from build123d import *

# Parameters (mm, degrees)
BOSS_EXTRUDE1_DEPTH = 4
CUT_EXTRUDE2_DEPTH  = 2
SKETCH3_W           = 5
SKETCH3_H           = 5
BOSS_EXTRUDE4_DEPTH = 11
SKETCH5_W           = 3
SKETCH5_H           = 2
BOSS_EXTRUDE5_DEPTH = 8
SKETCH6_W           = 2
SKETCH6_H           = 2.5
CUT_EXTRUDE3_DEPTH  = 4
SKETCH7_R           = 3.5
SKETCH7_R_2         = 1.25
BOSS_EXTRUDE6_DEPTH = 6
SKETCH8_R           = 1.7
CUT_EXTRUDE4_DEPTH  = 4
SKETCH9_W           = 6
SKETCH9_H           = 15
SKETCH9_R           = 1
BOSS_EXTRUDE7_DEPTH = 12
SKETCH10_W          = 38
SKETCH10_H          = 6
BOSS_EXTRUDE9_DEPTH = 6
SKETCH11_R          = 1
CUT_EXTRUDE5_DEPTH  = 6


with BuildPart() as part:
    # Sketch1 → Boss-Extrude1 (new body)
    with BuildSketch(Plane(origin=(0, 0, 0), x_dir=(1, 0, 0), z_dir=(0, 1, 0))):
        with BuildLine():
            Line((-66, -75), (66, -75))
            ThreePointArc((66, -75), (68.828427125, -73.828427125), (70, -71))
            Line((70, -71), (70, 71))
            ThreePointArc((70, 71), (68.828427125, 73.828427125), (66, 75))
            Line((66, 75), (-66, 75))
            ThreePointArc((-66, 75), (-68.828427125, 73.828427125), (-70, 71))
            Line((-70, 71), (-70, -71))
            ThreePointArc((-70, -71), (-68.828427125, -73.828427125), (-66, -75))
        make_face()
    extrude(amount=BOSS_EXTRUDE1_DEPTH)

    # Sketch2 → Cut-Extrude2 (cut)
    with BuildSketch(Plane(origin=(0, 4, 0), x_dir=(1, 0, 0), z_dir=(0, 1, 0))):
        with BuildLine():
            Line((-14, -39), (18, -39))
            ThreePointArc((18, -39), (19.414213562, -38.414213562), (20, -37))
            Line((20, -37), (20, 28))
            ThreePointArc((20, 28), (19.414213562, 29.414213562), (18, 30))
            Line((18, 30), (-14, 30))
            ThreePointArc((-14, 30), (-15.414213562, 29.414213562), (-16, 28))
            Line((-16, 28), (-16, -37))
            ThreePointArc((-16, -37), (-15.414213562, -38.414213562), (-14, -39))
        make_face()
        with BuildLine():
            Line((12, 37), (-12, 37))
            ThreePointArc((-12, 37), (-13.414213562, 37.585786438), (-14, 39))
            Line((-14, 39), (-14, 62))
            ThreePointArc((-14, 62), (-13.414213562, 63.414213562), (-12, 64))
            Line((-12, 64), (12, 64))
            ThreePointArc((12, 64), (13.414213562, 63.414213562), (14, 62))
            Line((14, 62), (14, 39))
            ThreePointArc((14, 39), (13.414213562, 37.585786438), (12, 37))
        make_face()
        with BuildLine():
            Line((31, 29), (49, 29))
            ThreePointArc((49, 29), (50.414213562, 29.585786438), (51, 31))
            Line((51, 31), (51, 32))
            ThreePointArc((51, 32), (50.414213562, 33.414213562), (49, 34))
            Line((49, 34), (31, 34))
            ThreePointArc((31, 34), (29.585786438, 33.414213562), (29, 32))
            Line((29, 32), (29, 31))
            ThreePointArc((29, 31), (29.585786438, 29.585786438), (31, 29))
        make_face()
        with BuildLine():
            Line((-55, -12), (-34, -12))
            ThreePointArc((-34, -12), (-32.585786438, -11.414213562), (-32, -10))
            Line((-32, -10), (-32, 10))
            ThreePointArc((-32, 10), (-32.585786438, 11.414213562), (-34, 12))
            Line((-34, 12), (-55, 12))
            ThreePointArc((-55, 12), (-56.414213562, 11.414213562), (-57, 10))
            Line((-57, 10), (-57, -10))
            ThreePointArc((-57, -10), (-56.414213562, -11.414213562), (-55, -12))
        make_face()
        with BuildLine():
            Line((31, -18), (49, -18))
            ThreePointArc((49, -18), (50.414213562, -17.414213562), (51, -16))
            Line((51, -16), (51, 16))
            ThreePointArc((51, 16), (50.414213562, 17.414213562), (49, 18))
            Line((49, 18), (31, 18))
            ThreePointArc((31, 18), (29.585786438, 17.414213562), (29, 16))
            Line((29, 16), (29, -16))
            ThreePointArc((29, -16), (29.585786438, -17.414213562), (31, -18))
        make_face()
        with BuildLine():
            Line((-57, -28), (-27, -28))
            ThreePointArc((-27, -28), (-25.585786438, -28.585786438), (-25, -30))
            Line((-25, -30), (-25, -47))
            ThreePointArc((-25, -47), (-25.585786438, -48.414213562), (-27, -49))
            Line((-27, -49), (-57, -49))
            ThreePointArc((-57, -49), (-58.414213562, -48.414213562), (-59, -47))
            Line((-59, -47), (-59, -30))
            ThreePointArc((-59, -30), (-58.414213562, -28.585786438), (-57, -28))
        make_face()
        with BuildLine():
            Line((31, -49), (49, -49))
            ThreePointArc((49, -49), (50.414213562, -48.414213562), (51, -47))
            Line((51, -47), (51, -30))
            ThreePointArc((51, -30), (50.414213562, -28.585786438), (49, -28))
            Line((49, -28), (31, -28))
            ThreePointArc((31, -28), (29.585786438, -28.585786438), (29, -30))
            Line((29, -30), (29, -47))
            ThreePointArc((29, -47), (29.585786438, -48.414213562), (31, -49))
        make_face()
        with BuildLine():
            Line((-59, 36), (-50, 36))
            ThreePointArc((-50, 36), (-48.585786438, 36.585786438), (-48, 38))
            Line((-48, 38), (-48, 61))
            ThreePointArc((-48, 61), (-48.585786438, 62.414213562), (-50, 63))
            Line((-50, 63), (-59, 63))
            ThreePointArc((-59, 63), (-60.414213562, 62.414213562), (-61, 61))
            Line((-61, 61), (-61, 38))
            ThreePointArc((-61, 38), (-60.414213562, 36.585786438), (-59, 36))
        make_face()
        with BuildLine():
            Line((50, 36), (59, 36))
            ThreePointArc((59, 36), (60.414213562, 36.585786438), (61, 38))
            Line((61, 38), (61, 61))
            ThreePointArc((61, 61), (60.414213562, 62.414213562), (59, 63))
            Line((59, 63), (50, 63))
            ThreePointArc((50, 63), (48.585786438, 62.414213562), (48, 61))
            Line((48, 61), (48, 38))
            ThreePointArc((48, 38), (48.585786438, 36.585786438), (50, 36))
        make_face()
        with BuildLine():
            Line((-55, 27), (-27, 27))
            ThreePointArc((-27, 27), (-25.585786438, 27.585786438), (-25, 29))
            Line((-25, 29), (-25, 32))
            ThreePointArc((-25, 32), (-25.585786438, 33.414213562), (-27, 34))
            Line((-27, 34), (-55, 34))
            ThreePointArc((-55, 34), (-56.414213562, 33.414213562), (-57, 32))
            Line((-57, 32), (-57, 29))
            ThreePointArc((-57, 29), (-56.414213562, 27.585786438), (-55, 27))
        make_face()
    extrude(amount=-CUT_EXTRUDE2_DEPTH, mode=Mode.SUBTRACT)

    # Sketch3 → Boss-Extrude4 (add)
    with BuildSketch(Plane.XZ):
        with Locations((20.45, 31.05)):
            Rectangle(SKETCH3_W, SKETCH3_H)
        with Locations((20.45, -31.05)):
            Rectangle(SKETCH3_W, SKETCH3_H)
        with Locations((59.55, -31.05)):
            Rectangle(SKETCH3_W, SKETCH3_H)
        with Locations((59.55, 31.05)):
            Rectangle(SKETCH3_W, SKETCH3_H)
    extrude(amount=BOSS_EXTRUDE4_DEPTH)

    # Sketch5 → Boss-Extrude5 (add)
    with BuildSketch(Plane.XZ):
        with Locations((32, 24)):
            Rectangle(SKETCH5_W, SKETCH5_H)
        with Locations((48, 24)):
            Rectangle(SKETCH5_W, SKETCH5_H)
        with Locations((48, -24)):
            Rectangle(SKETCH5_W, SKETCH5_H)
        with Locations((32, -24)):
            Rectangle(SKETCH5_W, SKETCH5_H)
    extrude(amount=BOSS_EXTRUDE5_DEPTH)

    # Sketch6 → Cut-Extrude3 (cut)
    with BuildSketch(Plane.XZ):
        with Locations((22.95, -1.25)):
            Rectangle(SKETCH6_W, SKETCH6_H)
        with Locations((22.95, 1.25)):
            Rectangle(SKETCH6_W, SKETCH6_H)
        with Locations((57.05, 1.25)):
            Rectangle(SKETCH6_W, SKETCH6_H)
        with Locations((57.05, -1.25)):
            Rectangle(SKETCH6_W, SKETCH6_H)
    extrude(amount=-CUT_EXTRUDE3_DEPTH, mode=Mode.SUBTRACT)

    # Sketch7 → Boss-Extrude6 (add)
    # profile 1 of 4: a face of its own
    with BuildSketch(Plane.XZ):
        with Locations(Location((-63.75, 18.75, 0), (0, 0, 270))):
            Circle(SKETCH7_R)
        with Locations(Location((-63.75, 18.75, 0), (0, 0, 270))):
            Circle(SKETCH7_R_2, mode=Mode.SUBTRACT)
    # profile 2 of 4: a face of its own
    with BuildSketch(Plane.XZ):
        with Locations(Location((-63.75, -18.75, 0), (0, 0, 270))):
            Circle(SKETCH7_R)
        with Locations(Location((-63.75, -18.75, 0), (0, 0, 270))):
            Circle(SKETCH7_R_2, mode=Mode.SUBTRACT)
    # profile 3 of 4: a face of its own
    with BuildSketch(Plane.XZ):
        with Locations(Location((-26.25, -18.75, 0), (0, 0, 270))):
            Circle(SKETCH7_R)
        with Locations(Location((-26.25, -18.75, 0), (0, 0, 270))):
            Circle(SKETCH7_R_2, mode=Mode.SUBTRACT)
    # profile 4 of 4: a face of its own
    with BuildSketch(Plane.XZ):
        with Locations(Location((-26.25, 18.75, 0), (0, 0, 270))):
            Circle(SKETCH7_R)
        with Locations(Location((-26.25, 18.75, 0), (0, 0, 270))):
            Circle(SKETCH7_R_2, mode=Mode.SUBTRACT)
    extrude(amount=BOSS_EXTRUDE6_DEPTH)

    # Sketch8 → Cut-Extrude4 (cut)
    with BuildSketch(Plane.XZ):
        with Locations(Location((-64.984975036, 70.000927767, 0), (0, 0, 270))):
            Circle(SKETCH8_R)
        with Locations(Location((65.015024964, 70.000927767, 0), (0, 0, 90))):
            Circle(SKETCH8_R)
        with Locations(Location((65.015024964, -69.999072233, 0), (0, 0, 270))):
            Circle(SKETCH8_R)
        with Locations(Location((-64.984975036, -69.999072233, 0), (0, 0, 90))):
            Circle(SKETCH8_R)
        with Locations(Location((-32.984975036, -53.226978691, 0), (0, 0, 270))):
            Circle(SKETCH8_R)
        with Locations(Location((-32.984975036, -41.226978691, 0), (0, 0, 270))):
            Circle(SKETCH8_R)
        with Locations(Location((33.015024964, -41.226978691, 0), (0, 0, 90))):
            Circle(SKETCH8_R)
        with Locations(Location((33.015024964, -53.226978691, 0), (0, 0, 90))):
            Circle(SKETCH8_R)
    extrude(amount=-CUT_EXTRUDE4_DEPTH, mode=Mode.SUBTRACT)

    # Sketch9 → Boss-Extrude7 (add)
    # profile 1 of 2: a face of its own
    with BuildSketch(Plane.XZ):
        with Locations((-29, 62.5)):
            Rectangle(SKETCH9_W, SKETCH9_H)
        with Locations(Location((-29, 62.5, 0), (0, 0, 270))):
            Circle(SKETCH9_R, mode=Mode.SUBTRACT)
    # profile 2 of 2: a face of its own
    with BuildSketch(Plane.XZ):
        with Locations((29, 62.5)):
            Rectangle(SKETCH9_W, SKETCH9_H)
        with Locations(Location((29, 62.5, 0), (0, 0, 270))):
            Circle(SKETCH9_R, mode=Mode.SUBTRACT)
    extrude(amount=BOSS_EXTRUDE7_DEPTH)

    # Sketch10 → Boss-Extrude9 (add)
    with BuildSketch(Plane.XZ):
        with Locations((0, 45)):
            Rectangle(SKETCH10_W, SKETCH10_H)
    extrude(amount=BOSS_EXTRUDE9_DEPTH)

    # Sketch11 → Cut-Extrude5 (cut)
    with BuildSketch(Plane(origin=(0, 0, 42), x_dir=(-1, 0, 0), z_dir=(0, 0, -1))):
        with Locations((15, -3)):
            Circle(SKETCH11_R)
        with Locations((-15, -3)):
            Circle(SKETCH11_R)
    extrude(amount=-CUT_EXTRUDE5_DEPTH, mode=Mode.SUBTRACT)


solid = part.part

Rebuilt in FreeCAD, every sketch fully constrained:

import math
import FreeCAD as App
import Part
import Sketcher

V = App.Vector
Q = App.Units.Quantity


def add_polygon(sketch, points):
    """Adds a closed chain of lines whose ends are joined by coincident constraints."""
    first, n = sketch.GeometryCount, len(points)
    for a, b in zip(points, points[1:] + points[:1]):
        sketch.addGeometry(Part.LineSegment(App.Vector(*a, 0), App.Vector(*b, 0)), False)
    for i in range(n):
        sketch.addConstraint(Sketcher.Constraint("Coincident", first + i, 2, first + (i + 1) % n, 1))

doc = App.newDocument("Part")
body = doc.addObject("PartDesign::Body", "Body")

# Sketch on XZ plane
sketch1 = body.newObject("Sketcher::SketchObject", "Sketch")
sketch1.AttachmentSupport = (doc.getObject("XZ_Plane"), [""])
sketch1.MapMode = "FlatFace"
sketch1.addGeometry(Part.LineSegment(V(-66, 75, 0), V(66, 75, 0)), False)
sketch1.addGeometry(Part.ArcOfCircle(Part.Circle(V(66, 71, 0), V(0, 0, 1), 4), math.radians(0), math.radians(90)), False)
sketch1.addGeometry(Part.LineSegment(V(70, 71, 0), V(70, -71, 0)), False)
sketch1.addGeometry(Part.ArcOfCircle(Part.Circle(V(66, -71, 0), V(0, 0, 1), 4), math.radians(-90), math.radians(0)), False)
sketch1.addGeometry(Part.LineSegment(V(66, -75, 0), V(-66, -75, 0)), False)
sketch1.addGeometry(Part.ArcOfCircle(Part.Circle(V(-66, -71, 0), V(0, 0, 1), 4), math.radians(180), math.radians(270)), False)
sketch1.addGeometry(Part.LineSegment(V(-70, -71, 0), V(-70, 71, 0)), False)
sketch1.addGeometry(Part.ArcOfCircle(Part.Circle(V(-66, 71, 0), V(0, 0, 1), 4), math.radians(90), math.radians(180)), False)
sketch1.addConstraint(Sketcher.Constraint("Tangent", 0, 2, 1, 2))
sketch1.addConstraint(Sketcher.Constraint("Tangent", 1, 1, 2, 1))
sketch1.addConstraint(Sketcher.Constraint("Tangent", 2, 2, 3, 2))
sketch1.addConstraint(Sketcher.Constraint("Tangent", 3, 1, 4, 1))
sketch1.addConstraint(Sketcher.Constraint("Tangent", 4, 2, 5, 2))
sketch1.addConstraint(Sketcher.Constraint("Tangent", 5, 1, 6, 1))
sketch1.addConstraint(Sketcher.Constraint("Tangent", 6, 2, 7, 2))
sketch1.addConstraint(Sketcher.Constraint("Tangent", 7, 1, 0, 1))
sketch1.addConstraint(Sketcher.Constraint("Horizontal", 0))
sketch1.addConstraint(Sketcher.Constraint("Vertical", 2))
sketch1.addConstraint(Sketcher.Constraint("Horizontal", 4))
sketch1.addConstraint(Sketcher.Constraint("Vertical", 6))
sketch1.addConstraint(Sketcher.Constraint("Equal", 1, 3))
sketch1.addConstraint(Sketcher.Constraint("Equal", 3, 5))
sketch1.addConstraint(Sketcher.Constraint("Equal", 5, 7))
sketch1.addConstraint(Sketcher.Constraint("Symmetric", 1, 3, 5, 3, -1, 1))
sketch1.addConstraint(Sketcher.Constraint("Radius", 1, Q("4 mm")))
sketch1.addConstraint(Sketcher.Constraint("DistanceX", 0, 1, 0, 2, Q("132 mm")))
sketch1.addConstraint(Sketcher.Constraint("DistanceY", 2, 2, 2, 1, Q("142 mm")))
pad1 = body.newObject("PartDesign::Pad", "Pad")
pad1.Profile = sketch1
pad1.Length = 4
pad1.Reversed = True

# Sketch on XZ plane
sketch2 = body.newObject("Sketcher::SketchObject", "Sketch001")
sketch2.AttachmentSupport = (doc.getObject("XZ_Plane"), [""])
sketch2.MapMode = "FlatFace"
sketch2.AttachmentOffset = App.Placement(V(0, 0, -4), App.Rotation())
sketch2.addGeometry(Part.LineSegment(V(-14, 39, 0), V(18, 39, 0)), False)
sketch2.addGeometry(Part.ArcOfCircle(Part.Circle(V(18, 37, 0), V(0, 0, 1), 2), math.radians(0), math.radians(90)), False)
sketch2.addGeometry(Part.LineSegment(V(20, 37, 0), V(20, -28, 0)), False)
sketch2.addGeometry(Part.ArcOfCircle(Part.Circle(V(18, -28, 0), V(0, 0, 1), 2), math.radians(-90), math.radians(0)), False)
sketch2.addGeometry(Part.LineSegment(V(18, -30, 0), V(-14, -30, 0)), False)
sketch2.addGeometry(Part.ArcOfCircle(Part.Circle(V(-14, -28, 0), V(0, 0, 1), 2), math.radians(-180), math.radians(-90)), False)
sketch2.addGeometry(Part.LineSegment(V(-16, -28, 0), V(-16, 37, 0)), False)
sketch2.addGeometry(Part.ArcOfCircle(Part.Circle(V(-14, 37, 0), V(0, 0, 1), 2), math.radians(90), math.radians(180)), False)
sketch2.addGeometry(Part.LineSegment(V(-12, -37, 0), V(12, -37, 0)), False)
sketch2.addGeometry(Part.ArcOfCircle(Part.Circle(V(12, -39, 0), V(0, 0, 1), 2), math.radians(0), math.radians(90)), False)
sketch2.addGeometry(Part.LineSegment(V(14, -39, 0), V(14, -62, 0)), False)
sketch2.addGeometry(Part.ArcOfCircle(Part.Circle(V(12, -62, 0), V(0, 0, 1), 2), math.radians(-90), math.radians(0)), False)
sketch2.addGeometry(Part.LineSegment(V(12, -64, 0), V(-12, -64, 0)), False)
sketch2.addGeometry(Part.ArcOfCircle(Part.Circle(V(-12, -62, 0), V(0, 0, 1), 2), math.radians(-180), math.radians(-90)), False)
sketch2.addGeometry(Part.LineSegment(V(-14, -62, 0), V(-14, -39, 0)), False)
sketch2.addGeometry(Part.ArcOfCircle(Part.Circle(V(-12, -39, 0), V(0, 0, 1), 2), math.radians(90), math.radians(180)), False)
sketch2.addGeometry(Part.LineSegment(V(31, -29, 0), V(49, -29, 0)), False)
sketch2.addGeometry(Part.ArcOfCircle(Part.Circle(V(49, -31, 0), V(0, 0, 1), 2), math.radians(0), math.radians(90)), False)
sketch2.addGeometry(Part.LineSegment(V(51, -31, 0), V(51, -32, 0)), False)
sketch2.addGeometry(Part.ArcOfCircle(Part.Circle(V(49, -32, 0), V(0, 0, 1), 2), math.radians(-90), math.radians(0)), False)
sketch2.addGeometry(Part.LineSegment(V(49, -34, 0), V(31, -34, 0)), False)
sketch2.addGeometry(Part.ArcOfCircle(Part.Circle(V(31, -32, 0), V(0, 0, 1), 2), math.radians(-180), math.radians(-90)), False)
sketch2.addGeometry(Part.LineSegment(V(29, -32, 0), V(29, -31, 0)), False)
sketch2.addGeometry(Part.ArcOfCircle(Part.Circle(V(31, -31, 0), V(0, 0, 1), 2), math.radians(90), math.radians(180)), False)
sketch2.addGeometry(Part.LineSegment(V(-55, 12, 0), V(-34, 12, 0)), False)
sketch2.addGeometry(Part.ArcOfCircle(Part.Circle(V(-34, 10, 0), V(0, 0, 1), 2), math.radians(0), math.radians(90)), False)
sketch2.addGeometry(Part.LineSegment(V(-32, 10, 0), V(-32, -10, 0)), False)
sketch2.addGeometry(Part.ArcOfCircle(Part.Circle(V(-34, -10, 0), V(0, 0, 1), 2), math.radians(-90), math.radians(0)), False)
sketch2.addGeometry(Part.LineSegment(V(-34, -12, 0), V(-55, -12, 0)), False)
sketch2.addGeometry(Part.ArcOfCircle(Part.Circle(V(-55, -10, 0), V(0, 0, 1), 2), math.radians(-180), math.radians(-90)), False)
sketch2.addGeometry(Part.LineSegment(V(-57, -10, 0), V(-57, 10, 0)), False)
sketch2.addGeometry(Part.ArcOfCircle(Part.Circle(V(-55, 10, 0), V(0, 0, 1), 2), math.radians(90), math.radians(180)), False)
sketch2.addGeometry(Part.LineSegment(V(31, 18, 0), V(49, 18, 0)), False)
sketch2.addGeometry(Part.ArcOfCircle(Part.Circle(V(49, 16, 0), V(0, 0, 1), 2), math.radians(0), math.radians(90)), False)
sketch2.addGeometry(Part.LineSegment(V(51, 16, 0), V(51, -16, 0)), False)
sketch2.addGeometry(Part.ArcOfCircle(Part.Circle(V(49, -16, 0), V(0, 0, 1), 2), math.radians(-90), math.radians(0)), False)
sketch2.addGeometry(Part.LineSegment(V(49, -18, 0), V(31, -18, 0)), False)
sketch2.addGeometry(Part.ArcOfCircle(Part.Circle(V(31, -16, 0), V(0, 0, 1), 2), math.radians(-180), math.radians(-90)), False)
sketch2.addGeometry(Part.LineSegment(V(29, -16, 0), V(29, 16, 0)), False)
sketch2.addGeometry(Part.ArcOfCircle(Part.Circle(V(31, 16, 0), V(0, 0, 1), 2), math.radians(90), math.radians(180)), False)
sketch2.addGeometry(Part.LineSegment(V(-27, 28, 0), V(-57, 28, 0)), False)
sketch2.addGeometry(Part.ArcOfCircle(Part.Circle(V(-57, 30, 0), V(0, 0, 1), 2), math.radians(-180), math.radians(-90)), False)
sketch2.addGeometry(Part.LineSegment(V(-59, 30, 0), V(-59, 47, 0)), False)
sketch2.addGeometry(Part.ArcOfCircle(Part.Circle(V(-57, 47, 0), V(0, 0, 1), 2), math.radians(90), math.radians(180)), False)
sketch2.addGeometry(Part.LineSegment(V(-57, 49, 0), V(-27, 49, 0)), False)
sketch2.addGeometry(Part.ArcOfCircle(Part.Circle(V(-27, 47, 0), V(0, 0, 1), 2), math.radians(0), math.radians(90)), False)
sketch2.addGeometry(Part.LineSegment(V(-25, 47, 0), V(-25, 30, 0)), False)
sketch2.addGeometry(Part.ArcOfCircle(Part.Circle(V(-27, 30, 0), V(0, 0, 1), 2), math.radians(-90), math.radians(0)), False)
sketch2.addGeometry(Part.LineSegment(V(31, 49, 0), V(49, 49, 0)), False)
sketch2.addGeometry(Part.ArcOfCircle(Part.Circle(V(49, 47, 0), V(0, 0, 1), 2), math.radians(0), math.radians(90)), False)
sketch2.addGeometry(Part.LineSegment(V(51, 47, 0), V(51, 30, 0)), False)
sketch2.addGeometry(Part.ArcOfCircle(Part.Circle(V(49, 30, 0), V(0, 0, 1), 2), math.radians(-90), math.radians(0)), False)
sketch2.addGeometry(Part.LineSegment(V(49, 28, 0), V(31, 28, 0)), False)
sketch2.addGeometry(Part.ArcOfCircle(Part.Circle(V(31, 30, 0), V(0, 0, 1), 2), math.radians(-180), math.radians(-90)), False)
sketch2.addGeometry(Part.LineSegment(V(29, 30, 0), V(29, 47, 0)), False)
sketch2.addGeometry(Part.ArcOfCircle(Part.Circle(V(31, 47, 0), V(0, 0, 1), 2), math.radians(90), math.radians(180)), False)
sketch2.addGeometry(Part.LineSegment(V(-59, -36, 0), V(-50, -36, 0)), False)
sketch2.addGeometry(Part.ArcOfCircle(Part.Circle(V(-50, -38, 0), V(0, 0, 1), 2), math.radians(0), math.radians(90)), False)
sketch2.addGeometry(Part.LineSegment(V(-48, -38, 0), V(-48, -61, 0)), False)
sketch2.addGeometry(Part.ArcOfCircle(Part.Circle(V(-50, -61, 0), V(0, 0, 1), 2), math.radians(-90), math.radians(0)), False)
sketch2.addGeometry(Part.LineSegment(V(-50, -63, 0), V(-59, -63, 0)), False)
sketch2.addGeometry(Part.ArcOfCircle(Part.Circle(V(-59, -61, 0), V(0, 0, 1), 2), math.radians(-180), math.radians(-90)), False)
sketch2.addGeometry(Part.LineSegment(V(-61, -61, 0), V(-61, -38, 0)), False)
sketch2.addGeometry(Part.ArcOfCircle(Part.Circle(V(-59, -38, 0), V(0, 0, 1), 2), math.radians(90), math.radians(180)), False)
sketch2.addGeometry(Part.LineSegment(V(50, -36, 0), V(59, -36, 0)), False)
sketch2.addGeometry(Part.ArcOfCircle(Part.Circle(V(59, -38, 0), V(0, 0, 1), 2), math.radians(0), math.radians(90)), False)
sketch2.addGeometry(Part.LineSegment(V(61, -38, 0), V(61, -61, 0)), False)
sketch2.addGeometry(Part.ArcOfCircle(Part.Circle(V(59, -61, 0), V(0, 0, 1), 2), math.radians(-90), math.radians(0)), False)
sketch2.addGeometry(Part.LineSegment(V(59, -63, 0), V(50, -63, 0)), False)
sketch2.addGeometry(Part.ArcOfCircle(Part.Circle(V(50, -61, 0), V(0, 0, 1), 2), math.radians(-180), math.radians(-90)), False)
sketch2.addGeometry(Part.LineSegment(V(48, -61, 0), V(48, -38, 0)), False)
sketch2.addGeometry(Part.ArcOfCircle(Part.Circle(V(50, -38, 0), V(0, 0, 1), 2), math.radians(90), math.radians(180)), False)
sketch2.addGeometry(Part.LineSegment(V(-55, -27, 0), V(-27, -27, 0)), False)
sketch2.addGeometry(Part.ArcOfCircle(Part.Circle(V(-27, -29, 0), V(0, 0, 1), 2), math.radians(0), math.radians(90)), False)
sketch2.addGeometry(Part.LineSegment(V(-25, -29, 0), V(-25, -32, 0)), False)
sketch2.addGeometry(Part.ArcOfCircle(Part.Circle(V(-27, -32, 0), V(0, 0, 1), 2), math.radians(-90), math.radians(0)), False)
sketch2.addGeometry(Part.LineSegment(V(-27, -34, 0), V(-55, -34, 0)), False)
sketch2.addGeometry(Part.ArcOfCircle(Part.Circle(V(-55, -32, 0), V(0, 0, 1), 2), math.radians(-180), math.radians(-90)), False)
sketch2.addGeometry(Part.LineSegment(V(-57, -32, 0), V(-57, -29, 0)), False)
sketch2.addGeometry(Part.ArcOfCircle(Part.Circle(V(-55, -29, 0), V(0, 0, 1), 2), math.radians(90), math.radians(180)), False)
sketch2.addConstraint(Sketcher.Constraint("Tangent", 0, 2, 1, 2))
sketch2.addConstraint(Sketcher.Constraint("Tangent", 1, 1, 2, 1))
sketch2.addConstraint(Sketcher.Constraint("Tangent", 2, 2, 3, 2))
sketch2.addConstraint(Sketcher.Constraint("Tangent", 3, 1, 4, 1))
sketch2.addConstraint(Sketcher.Constraint("Tangent", 4, 2, 5, 2))
sketch2.addConstraint(Sketcher.Constraint("Tangent", 5, 1, 6, 1))
sketch2.addConstraint(Sketcher.Constraint("Tangent", 6, 2, 7, 2))
sketch2.addConstraint(Sketcher.Constraint("Tangent", 7, 1, 0, 1))
sketch2.addConstraint(Sketcher.Constraint("Tangent", 8, 2, 9, 2))
sketch2.addConstraint(Sketcher.Constraint("Tangent", 9, 1, 10, 1))
sketch2.addConstraint(Sketcher.Constraint("Tangent", 10, 2, 11, 2))
sketch2.addConstraint(Sketcher.Constraint("Tangent", 11, 1, 12, 1))
sketch2.addConstraint(Sketcher.Constraint("Tangent", 12, 2, 13, 2))
sketch2.addConstraint(Sketcher.Constraint("Tangent", 13, 1, 14, 1))
sketch2.addConstraint(Sketcher.Constraint("Tangent", 14, 2, 15, 2))
sketch2.addConstraint(Sketcher.Constraint("Tangent", 15, 1, 8, 1))
sketch2.addConstraint(Sketcher.Constraint("Tangent", 16, 2, 17, 2))
sketch2.addConstraint(Sketcher.Constraint("Tangent", 17, 1, 18, 1))
sketch2.addConstraint(Sketcher.Constraint("Tangent", 18, 2, 19, 2))
sketch2.addConstraint(Sketcher.Constraint("Tangent", 19, 1, 20, 1))
sketch2.addConstraint(Sketcher.Constraint("Tangent", 20, 2, 21, 2))
sketch2.addConstraint(Sketcher.Constraint("Tangent", 21, 1, 22, 1))
sketch2.addConstraint(Sketcher.Constraint("Tangent", 22, 2, 23, 2))
sketch2.addConstraint(Sketcher.Constraint("Tangent", 23, 1, 16, 1))
sketch2.addConstraint(Sketcher.Constraint("Tangent", 24, 2, 25, 2))
sketch2.addConstraint(Sketcher.Constraint("Tangent", 25, 1, 26, 1))
sketch2.addConstraint(Sketcher.Constraint("Tangent", 26, 2, 27, 2))
sketch2.addConstraint(Sketcher.Constraint("Tangent", 27, 1, 28, 1))
sketch2.addConstraint(Sketcher.Constraint("Tangent", 28, 2, 29, 2))
sketch2.addConstraint(Sketcher.Constraint("Tangent", 29, 1, 30, 1))
sketch2.addConstraint(Sketcher.Constraint("Tangent", 30, 2, 31, 2))
sketch2.addConstraint(Sketcher.Constraint("Tangent", 31, 1, 24, 1))
sketch2.addConstraint(Sketcher.Constraint("Tangent", 32, 2, 33, 2))
sketch2.addConstraint(Sketcher.Constraint("Tangent", 33, 1, 34, 1))
sketch2.addConstraint(Sketcher.Constraint("Tangent", 34, 2, 35, 2))
sketch2.addConstraint(Sketcher.Constraint("Tangent", 35, 1, 36, 1))
sketch2.addConstraint(Sketcher.Constraint("Tangent", 36, 2, 37, 2))
sketch2.addConstraint(Sketcher.Constraint("Tangent", 37, 1, 38, 1))
sketch2.addConstraint(Sketcher.Constraint("Tangent", 38, 2, 39, 2))
sketch2.addConstraint(Sketcher.Constraint("Tangent", 39, 1, 32, 1))
sketch2.addConstraint(Sketcher.Constraint("Tangent", 40, 2, 41, 2))
sketch2.addConstraint(Sketcher.Constraint("Tangent", 41, 1, 42, 1))
sketch2.addConstraint(Sketcher.Constraint("Tangent", 42, 2, 43, 2))
sketch2.addConstraint(Sketcher.Constraint("Tangent", 43, 1, 44, 1))
sketch2.addConstraint(Sketcher.Constraint("Tangent", 44, 2, 45, 2))
sketch2.addConstraint(Sketcher.Constraint("Tangent", 45, 1, 46, 1))
sketch2.addConstraint(Sketcher.Constraint("Tangent", 46, 2, 47, 2))
sketch2.addConstraint(Sketcher.Constraint("Tangent", 47, 1, 40, 1))
sketch2.addConstraint(Sketcher.Constraint("Tangent", 48, 2, 49, 2))
sketch2.addConstraint(Sketcher.Constraint("Tangent", 49, 1, 50, 1))
sketch2.addConstraint(Sketcher.Constraint("Tangent", 50, 2, 51, 2))
sketch2.addConstraint(Sketcher.Constraint("Tangent", 51, 1, 52, 1))
sketch2.addConstraint(Sketcher.Constraint("Tangent", 52, 2, 53, 2))
sketch2.addConstraint(Sketcher.Constraint("Tangent", 53, 1, 54, 1))
sketch2.addConstraint(Sketcher.Constraint("Tangent", 54, 2, 55, 2))
sketch2.addConstraint(Sketcher.Constraint("Tangent", 55, 1, 48, 1))
sketch2.addConstraint(Sketcher.Constraint("Tangent", 56, 2, 57, 2))
sketch2.addConstraint(Sketcher.Constraint("Tangent", 57, 1, 58, 1))
sketch2.addConstraint(Sketcher.Constraint("Tangent", 58, 2, 59, 2))
sketch2.addConstraint(Sketcher.Constraint("Tangent", 59, 1, 60, 1))
sketch2.addConstraint(Sketcher.Constraint("Tangent", 60, 2, 61, 2))
sketch2.addConstraint(Sketcher.Constraint("Tangent", 61, 1, 62, 1))
sketch2.addConstraint(Sketcher.Constraint("Tangent", 62, 2, 63, 2))
sketch2.addConstraint(Sketcher.Constraint("Tangent", 63, 1, 56, 1))
sketch2.addConstraint(Sketcher.Constraint("Tangent", 64, 2, 65, 2))
sketch2.addConstraint(Sketcher.Constraint("Tangent", 65, 1, 66, 1))
sketch2.addConstraint(Sketcher.Constraint("Tangent", 66, 2, 67, 2))
sketch2.addConstraint(Sketcher.Constraint("Tangent", 67, 1, 68, 1))
sketch2.addConstraint(Sketcher.Constraint("Tangent", 68, 2, 69, 2))
sketch2.addConstraint(Sketcher.Constraint("Tangent", 69, 1, 70, 1))
sketch2.addConstraint(Sketcher.Constraint("Tangent", 70, 2, 71, 2))
sketch2.addConstraint(Sketcher.Constraint("Tangent", 71, 1, 64, 1))
sketch2.addConstraint(Sketcher.Constraint("Tangent", 72, 2, 73, 2))
sketch2.addConstraint(Sketcher.Constraint("Tangent", 73, 1, 74, 1))
sketch2.addConstraint(Sketcher.Constraint("Tangent", 74, 2, 75, 2))
sketch2.addConstraint(Sketcher.Constraint("Tangent", 75, 1, 76, 1))
sketch2.addConstraint(Sketcher.Constraint("Tangent", 76, 2, 77, 2))
sketch2.addConstraint(Sketcher.Constraint("Tangent", 77, 1, 78, 1))
sketch2.addConstraint(Sketcher.Constraint("Tangent", 78, 2, 79, 2))
sketch2.addConstraint(Sketcher.Constraint("Tangent", 79, 1, 72, 1))
sketch2.addConstraint(Sketcher.Constraint("Horizontal", 0))
sketch2.addConstraint(Sketcher.Constraint("Vertical", 2))
sketch2.addConstraint(Sketcher.Constraint("Horizontal", 4))
sketch2.addConstraint(Sketcher.Constraint("Vertical", 6))
sketch2.addConstraint(Sketcher.Constraint("Horizontal", 8))
sketch2.addConstraint(Sketcher.Constraint("Vertical", 10))
sketch2.addConstraint(Sketcher.Constraint("Horizontal", 12))
sketch2.addConstraint(Sketcher.Constraint("Vertical", 14))
sketch2.addConstraint(Sketcher.Constraint("Horizontal", 16))
sketch2.addConstraint(Sketcher.Constraint("Vertical", 18))
sketch2.addConstraint(Sketcher.Constraint("Horizontal", 20))
sketch2.addConstraint(Sketcher.Constraint("Vertical", 22))
sketch2.addConstraint(Sketcher.Constraint("Horizontal", 24))
sketch2.addConstraint(Sketcher.Constraint("Vertical", 26))
sketch2.addConstraint(Sketcher.Constraint("Horizontal", 28))
sketch2.addConstraint(Sketcher.Constraint("Vertical", 30))
sketch2.addConstraint(Sketcher.Constraint("Horizontal", 32))
sketch2.addConstraint(Sketcher.Constraint("Vertical", 34))
sketch2.addConstraint(Sketcher.Constraint("Horizontal", 36))
sketch2.addConstraint(Sketcher.Constraint("Vertical", 38))
sketch2.addConstraint(Sketcher.Constraint("Horizontal", 40))
sketch2.addConstraint(Sketcher.Constraint("Vertical", 42))
sketch2.addConstraint(Sketcher.Constraint("Horizontal", 44))
sketch2.addConstraint(Sketcher.Constraint("Vertical", 46))
sketch2.addConstraint(Sketcher.Constraint("Horizontal", 48))
sketch2.addConstraint(Sketcher.Constraint("Vertical", 50))
sketch2.addConstraint(Sketcher.Constraint("Horizontal", 52))
sketch2.addConstraint(Sketcher.Constraint("Vertical", 54))
sketch2.addConstraint(Sketcher.Constraint("Horizontal", 56))
sketch2.addConstraint(Sketcher.Constraint("Vertical", 58))
sketch2.addConstraint(Sketcher.Constraint("Horizontal", 60))
sketch2.addConstraint(Sketcher.Constraint("Vertical", 62))
sketch2.addConstraint(Sketcher.Constraint("Horizontal", 64))
sketch2.addConstraint(Sketcher.Constraint("Vertical", 66))
sketch2.addConstraint(Sketcher.Constraint("Horizontal", 68))
sketch2.addConstraint(Sketcher.Constraint("Vertical", 70))
sketch2.addConstraint(Sketcher.Constraint("Horizontal", 72))
sketch2.addConstraint(Sketcher.Constraint("Vertical", 74))
sketch2.addConstraint(Sketcher.Constraint("Horizontal", 76))
sketch2.addConstraint(Sketcher.Constraint("Vertical", 78))
sketch2.addConstraint(Sketcher.Constraint("Equal", 1, 3))
sketch2.addConstraint(Sketcher.Constraint("Equal", 3, 5))
sketch2.addConstraint(Sketcher.Constraint("Equal", 5, 7))
sketch2.addConstraint(Sketcher.Constraint("Equal", 7, 9))
sketch2.addConstraint(Sketcher.Constraint("Equal", 9, 11))
sketch2.addConstraint(Sketcher.Constraint("Equal", 11, 13))
sketch2.addConstraint(Sketcher.Constraint("Equal", 13, 15))
sketch2.addConstraint(Sketcher.Constraint("Equal", 15, 17))
sketch2.addConstraint(Sketcher.Constraint("Equal", 17, 19))
sketch2.addConstraint(Sketcher.Constraint("Equal", 19, 21))
sketch2.addConstraint(Sketcher.Constraint("Equal", 21, 23))
sketch2.addConstraint(Sketcher.Constraint("Equal", 23, 25))
sketch2.addConstraint(Sketcher.Constraint("Equal", 25, 27))
sketch2.addConstraint(Sketcher.Constraint("Equal", 27, 29))
sketch2.addConstraint(Sketcher.Constraint("Equal", 29, 31))
sketch2.addConstraint(Sketcher.Constraint("Equal", 31, 33))
sketch2.addConstraint(Sketcher.Constraint("Equal", 33, 35))
sketch2.addConstraint(Sketcher.Constraint("Equal", 35, 37))
sketch2.addConstraint(Sketcher.Constraint("Equal", 37, 39))
sketch2.addConstraint(Sketcher.Constraint("Equal", 39, 41))
sketch2.addConstraint(Sketcher.Constraint("Equal", 41, 43))
sketch2.addConstraint(Sketcher.Constraint("Equal", 43, 45))
sketch2.addConstraint(Sketcher.Constraint("Equal", 45, 47))
sketch2.addConstraint(Sketcher.Constraint("Equal", 47, 49))
sketch2.addConstraint(Sketcher.Constraint("Equal", 49, 51))
sketch2.addConstraint(Sketcher.Constraint("Equal", 51, 53))
sketch2.addConstraint(Sketcher.Constraint("Equal", 53, 55))
sketch2.addConstraint(Sketcher.Constraint("Equal", 55, 57))
sketch2.addConstraint(Sketcher.Constraint("Equal", 57, 59))
sketch2.addConstraint(Sketcher.Constraint("Equal", 59, 61))
sketch2.addConstraint(Sketcher.Constraint("Equal", 61, 63))
sketch2.addConstraint(Sketcher.Constraint("Equal", 63, 65))
sketch2.addConstraint(Sketcher.Constraint("Equal", 65, 67))
sketch2.addConstraint(Sketcher.Constraint("Equal", 67, 69))
sketch2.addConstraint(Sketcher.Constraint("Equal", 69, 71))
sketch2.addConstraint(Sketcher.Constraint("Equal", 71, 73))
sketch2.addConstraint(Sketcher.Constraint("Equal", 73, 75))
sketch2.addConstraint(Sketcher.Constraint("Equal", 75, 77))
sketch2.addConstraint(Sketcher.Constraint("Equal", 77, 79))
sketch2.addConstraint(Sketcher.Constraint("Symmetric", 7, 1, 9, 1, -1, 1))
sketch2.addConstraint(Sketcher.Constraint("Symmetric", 63, 3, 65, 3, -2))
sketch2.addConstraint(Sketcher.Constraint("Symmetric", 59, 3, 69, 3, -2))
sketch2.addConstraint(Sketcher.Constraint("Horizontal", 45, 3, 49, 3))
sketch2.addConstraint(Sketcher.Constraint("Horizontal", 47, 3, 51, 3))
sketch2.addConstraint(Sketcher.Constraint("Horizontal", 21, 3, 75, 3))
sketch2.addConstraint(Sketcher.Constraint("Horizontal", 79, 3, 16, 2))
sketch2.addConstraint(Sketcher.Constraint("Vertical", 19, 3, 33, 3))
sketch2.addConstraint(Sketcher.Constraint("Vertical", 23, 3, 37, 3))
sketch2.addConstraint(Sketcher.Constraint("Vertical", 35, 3, 49, 3))
sketch2.addConstraint(Sketcher.Constraint("Vertical", 39, 3, 53, 3))
sketch2.addConstraint(Sketcher.Constraint("Vertical", 47, 3, 73, 3))
sketch2.addConstraint(Sketcher.Constraint("Vertical", 31, 3, 77, 3))
sketch2.addConstraint(Sketcher.Constraint("Vertical", 7, 1, 13, 1))
sketch2.addConstraint(Sketcher.Constraint("Vertical", 43, 3, 29, 1))
sketch2.addConstraint(Sketcher.Constraint("Vertical", 63, 3, 41, 1))
sketch2.addConstraint(Sketcher.Constraint("Equal", 4, 34))
sketch2.addConstraint(Sketcher.Constraint("Equal", 14, 58))
sketch2.addConstraint(Sketcher.Constraint("Radius", 1, Q("2 mm")))
sketch2.addConstraint(Sketcher.Constraint("DistanceX", 0, 1, 0, 2, Q("32 mm")))
sketch2.addConstraint(Sketcher.Constraint("DistanceX", 8, 1, 8, 2, Q("24 mm")))
sketch2.addConstraint(Sketcher.Constraint("DistanceX", 16, 1, 16, 2, Q("18 mm")))
sketch2.addConstraint(Sketcher.Constraint("DistanceX", 24, 1, 24, 2, Q("21 mm")))
sketch2.addConstraint(Sketcher.Constraint("DistanceX", 40, 2, 40, 1, Q("30 mm")))
sketch2.addConstraint(Sketcher.Constraint("DistanceX", 56, 1, 56, 2, Q("9 mm")))
sketch2.addConstraint(Sketcher.Constraint("DistanceY", 2, 2, 2, 1, Q("65 mm")))
sketch2.addConstraint(Sketcher.Constraint("DistanceY", 10, 2, 10, 1, Q("23 mm")))
sketch2.addConstraint(Sketcher.Constraint("DistanceY", 18, 2, 18, 1, Q("1 mm")))
sketch2.addConstraint(Sketcher.Constraint("DistanceY", 26, 2, 26, 1, Q("20 mm")))
sketch2.addConstraint(Sketcher.Constraint("DistanceY", 42, 1, 42, 2, Q("17 mm")))
sketch2.addConstraint(Sketcher.Constraint("DistanceY", -1, 1, 1, 3, Q("37 mm")))
sketch2.addConstraint(Sketcher.Constraint("DistanceX", -1, 1, 17, 3, Q("49 mm")))
sketch2.addConstraint(Sketcher.Constraint("DistanceY", 17, 3, -1, 1, Q("31 mm")))
sketch2.addConstraint(Sketcher.Constraint("DistanceX", 25, 3, -1, 1, Q("34 mm")))
sketch2.addConstraint(Sketcher.Constraint("DistanceY", -1, 1, 25, 3, Q("10 mm")))
sketch2.addConstraint(Sketcher.Constraint("DistanceY", -1, 1, 33, 3, Q("16 mm")))
sketch2.addConstraint(Sketcher.Constraint("DistanceY", -1, 1, 41, 3, Q("30 mm")))
sketch2.addConstraint(Sketcher.Constraint("DistanceY", 57, 3, -1, 1, Q("38 mm")))
pocket1 = body.newObject("PartDesign::Pocket", "Pocket")
pocket1.Profile = sketch2
pocket1.Length = 2
pocket1.Reversed = True

# Sketch on XZ plane
sketch3 = body.newObject("Sketcher::SketchObject", "Sketch002")
sketch3.AttachmentSupport = (doc.getObject("XZ_Plane"), [""])
sketch3.MapMode = "FlatFace"
add_polygon(sketch3, [(17.95, 33.55), (17.95, 28.55), (22.95, 28.55), (22.95, 33.55)])  # lines 0-3
add_polygon(sketch3, [(17.95, -28.55), (17.95, -33.55), (22.95, -33.55), (22.95, -28.55)])  # lines 4-7
add_polygon(sketch3, [(57.05, -28.55), (57.05, -33.55), (62.05, -33.55), (62.05, -28.55)])  # lines 8-11
add_polygon(sketch3, [(57.05, 33.55), (57.05, 28.55), (62.05, 28.55), (62.05, 33.55)])  # lines 12-15
sketch3.addConstraint(Sketcher.Constraint("Vertical", 0))
sketch3.addConstraint(Sketcher.Constraint("Horizontal", 1))
sketch3.addConstraint(Sketcher.Constraint("Vertical", 2))
sketch3.addConstraint(Sketcher.Constraint("Horizontal", 3))
sketch3.addConstraint(Sketcher.Constraint("Vertical", 4))
sketch3.addConstraint(Sketcher.Constraint("Horizontal", 5))
sketch3.addConstraint(Sketcher.Constraint("Vertical", 6))
sketch3.addConstraint(Sketcher.Constraint("Horizontal", 7))
sketch3.addConstraint(Sketcher.Constraint("Vertical", 8))
sketch3.addConstraint(Sketcher.Constraint("Horizontal", 9))
sketch3.addConstraint(Sketcher.Constraint("Vertical", 10))
sketch3.addConstraint(Sketcher.Constraint("Horizontal", 11))
sketch3.addConstraint(Sketcher.Constraint("Vertical", 12))
sketch3.addConstraint(Sketcher.Constraint("Horizontal", 13))
sketch3.addConstraint(Sketcher.Constraint("Vertical", 14))
sketch3.addConstraint(Sketcher.Constraint("Horizontal", 15))
sketch3.addConstraint(Sketcher.Constraint("Symmetric", 3, 2, 4, 2, -1))
sketch3.addConstraint(Sketcher.Constraint("Symmetric", 1, 2, 6, 2, -1))
sketch3.addConstraint(Sketcher.Constraint("Symmetric", 11, 2, 12, 2, -1))
sketch3.addConstraint(Sketcher.Constraint("Symmetric", 9, 2, 14, 2, -1))
sketch3.addConstraint(Sketcher.Constraint("Horizontal", 5, 2, 8, 2))
sketch3.addConstraint(Sketcher.Constraint("Horizontal", 7, 2, 10, 2))
sketch3.addConstraint(Sketcher.Constraint("Equal", 7, 9))
sketch3.addConstraint(Sketcher.Constraint("Equal", 15, 0))
sketch3.addConstraint(Sketcher.Constraint("DistanceX", 1, 1, 1, 2, Q("5 mm")))
sketch3.addConstraint(Sketcher.Constraint("DistanceY", 4, 2, 0, 2, Q("62.1 mm")))
sketch3.addConstraint(Sketcher.Constraint("DistanceX", 5, 2, 8, 2, Q("34.1 mm")))
sketch3.addConstraint(Sketcher.Constraint("DistanceX", -1, 1, 0, 2, Q("17.95 mm")))
pad2 = body.newObject("PartDesign::Pad", "Pad001")
pad2.Profile = sketch3
pad2.Length = 11

# Sketch on XZ plane
sketch4 = body.newObject("Sketcher::SketchObject", "Sketch003")
sketch4.AttachmentSupport = (doc.getObject("XZ_Plane"), [""])
sketch4.MapMode = "FlatFace"
add_polygon(sketch4, [(30.5, 25), (30.5, 23), (33.5, 23), (33.5, 25)])  # lines 0-3
add_polygon(sketch4, [(46.5, 25), (46.5, 23), (49.5, 23), (49.5, 25)])  # lines 4-7
add_polygon(sketch4, [(46.5, -23), (46.5, -25), (49.5, -25), (49.5, -23)])  # lines 8-11
add_polygon(sketch4, [(30.5, -23), (30.5, -25), (33.5, -25), (33.5, -23)])  # lines 12-15
sketch4.addConstraint(Sketcher.Constraint("Vertical", 0))
sketch4.addConstraint(Sketcher.Constraint("Horizontal", 1))
sketch4.addConstraint(Sketcher.Constraint("Vertical", 2))
sketch4.addConstraint(Sketcher.Constraint("Horizontal", 3))
sketch4.addConstraint(Sketcher.Constraint("Vertical", 4))
sketch4.addConstraint(Sketcher.Constraint("Horizontal", 5))
sketch4.addConstraint(Sketcher.Constraint("Vertical", 6))
sketch4.addConstraint(Sketcher.Constraint("Horizontal", 7))
sketch4.addConstraint(Sketcher.Constraint("Vertical", 8))
sketch4.addConstraint(Sketcher.Constraint("Horizontal", 9))
sketch4.addConstraint(Sketcher.Constraint("Vertical", 10))
sketch4.addConstraint(Sketcher.Constraint("Horizontal", 11))
sketch4.addConstraint(Sketcher.Constraint("Vertical", 12))
sketch4.addConstraint(Sketcher.Constraint("Horizontal", 13))
sketch4.addConstraint(Sketcher.Constraint("Vertical", 14))
sketch4.addConstraint(Sketcher.Constraint("Horizontal", 15))
sketch4.addConstraint(Sketcher.Constraint("Symmetric", 7, 2, 8, 2, -1))
sketch4.addConstraint(Sketcher.Constraint("Symmetric", 5, 2, 10, 2, -1))
sketch4.addConstraint(Sketcher.Constraint("Symmetric", 3, 2, 12, 2, -1))
sketch4.addConstraint(Sketcher.Constraint("Symmetric", 1, 2, 14, 2, -1))
sketch4.addConstraint(Sketcher.Constraint("Horizontal", 1, 2, 4, 2))
sketch4.addConstraint(Sketcher.Constraint("Horizontal", 3, 2, 6, 2))
sketch4.addConstraint(Sketcher.Constraint("Equal", 3, 5))
sketch4.addConstraint(Sketcher.Constraint("DistanceX", 1, 1, 1, 2, Q("3 mm")))
sketch4.addConstraint(Sketcher.Constraint("DistanceY", 0, 2, 0, 1, Q("2 mm")))
sketch4.addConstraint(Sketcher.Constraint("DistanceY", -1, 1, 0, 2, Q("23 mm")))
sketch4.addConstraint(Sketcher.Constraint("DistanceX", 1, 2, 4, 2, Q("13 mm")))
sketch4.addConstraint(Sketcher.Constraint("DistanceX", -1, 1, 0, 2, Q("30.5 mm")))
pad3 = body.newObject("PartDesign::Pad", "Pad002")
pad3.Profile = sketch4
pad3.Length = 8

# Sketch on XZ plane
sketch5 = body.newObject("Sketcher::SketchObject", "Sketch004")
sketch5.AttachmentSupport = (doc.getObject("XZ_Plane"), [""])
sketch5.MapMode = "FlatFace"
add_polygon(sketch5, [(21.95, -2.5), (23.95, -2.5), (23.95, 2.5), (21.95, 2.5)])  # lines 0-3
add_polygon(sketch5, [(56.05, 2.5), (56.05, -2.5), (58.05, -2.5), (58.05, 2.5)])  # lines 4-7
sketch5.addConstraint(Sketcher.Constraint("Horizontal", 0))
sketch5.addConstraint(Sketcher.Constraint("Vertical", 1))
sketch5.addConstraint(Sketcher.Constraint("Horizontal", 2))
sketch5.addConstraint(Sketcher.Constraint("Vertical", 3))
sketch5.addConstraint(Sketcher.Constraint("Vertical", 4))
sketch5.addConstraint(Sketcher.Constraint("Horizontal", 5))
sketch5.addConstraint(Sketcher.Constraint("Vertical", 6))
sketch5.addConstraint(Sketcher.Constraint("Horizontal", 7))
sketch5.addConstraint(Sketcher.Constraint("Horizontal", 3, 2, 4, 2))
sketch5.addConstraint(Sketcher.Constraint("Horizontal", 2, 2, 6, 2))
sketch5.addConstraint(Sketcher.Constraint("Equal", 2, 5))
sketch5.addConstraint(Sketcher.Constraint("DistanceX", 0, 1, 0, 2, Q("2 mm")))
sketch5.addConstraint(Sketcher.Constraint("DistanceY", 1, 1, 1, 2, Q("5 mm")))
sketch5.addConstraint(Sketcher.Constraint("DistanceY", 0, 2, -1, 1, Q("2.5 mm")))
sketch5.addConstraint(Sketcher.Constraint("DistanceX", 0, 2, 4, 2, Q("32.1 mm")))
sketch5.addConstraint(Sketcher.Constraint("DistanceX", -1, 1, 0, 2, Q("23.95 mm")))
pocket2 = body.newObject("PartDesign::Pocket", "Pocket001")
pocket2.Profile = sketch5
pocket2.Length = 4

# Sketch on XZ plane
sketch6 = body.newObject("Sketcher::SketchObject", "Sketch005")
sketch6.AttachmentSupport = (doc.getObject("XZ_Plane"), [""])
sketch6.MapMode = "FlatFace"
sketch6.addGeometry(Part.Circle(V(-63.75, 18.75, 0), V(0, 0, 1), 3.5), False)
sketch6.addGeometry(Part.Circle(V(-63.75, 18.75, 0), V(0, 0, 1), 1.25), False)
sketch6.addGeometry(Part.Circle(V(-63.75, -18.75, 0), V(0, 0, 1), 3.5), False)
sketch6.addGeometry(Part.Circle(V(-63.75, -18.75, 0), V(0, 0, 1), 1.25), False)
sketch6.addGeometry(Part.Circle(V(-26.25, -18.75, 0), V(0, 0, 1), 3.5), False)
sketch6.addGeometry(Part.Circle(V(-26.25, -18.75, 0), V(0, 0, 1), 1.25), False)
sketch6.addGeometry(Part.Circle(V(-26.25, 18.75, 0), V(0, 0, 1), 3.5), False)
sketch6.addGeometry(Part.Circle(V(-26.25, 18.75, 0), V(0, 0, 1), 1.25), False)
sketch6.addConstraint(Sketcher.Constraint("Coincident", 1, 3, 0, 3))
sketch6.addConstraint(Sketcher.Constraint("Coincident", 3, 3, 2, 3))
sketch6.addConstraint(Sketcher.Constraint("Coincident", 5, 3, 4, 3))
sketch6.addConstraint(Sketcher.Constraint("Coincident", 7, 3, 6, 3))
sketch6.addConstraint(Sketcher.Constraint("Equal", 0, 2))
sketch6.addConstraint(Sketcher.Constraint("Equal", 1, 3))
sketch6.addConstraint(Sketcher.Constraint("Equal", 2, 4))
sketch6.addConstraint(Sketcher.Constraint("Equal", 3, 5))
sketch6.addConstraint(Sketcher.Constraint("Equal", 4, 6))
sketch6.addConstraint(Sketcher.Constraint("Equal", 5, 7))
sketch6.addConstraint(Sketcher.Constraint("Symmetric", 0, 3, 2, 3, -1))
sketch6.addConstraint(Sketcher.Constraint("Symmetric", 4, 3, 6, 3, -1))
sketch6.addConstraint(Sketcher.Constraint("Horizontal", 3, 3, 4, 3))
sketch6.addConstraint(Sketcher.Constraint("Diameter", 0, Q("7 mm")))
sketch6.addConstraint(Sketcher.Constraint("Diameter", 1, Q("2.5 mm")))
sketch6.addConstraint(Sketcher.Constraint("DistanceY", 2, 3, 0, 3, Q("37.5 mm")))
sketch6.addConstraint(Sketcher.Constraint("DistanceX", 2, 3, 4, 3, Q("37.5 mm")))
sketch6.addConstraint(Sketcher.Constraint("DistanceX", 0, 3, -1, 1, Q("63.75 mm")))
pad4 = body.newObject("PartDesign::Pad", "Pad003")
pad4.Profile = sketch6
pad4.Length = 6

# Sketch on XZ plane
sketch7 = body.newObject("Sketcher::SketchObject", "Sketch006")
sketch7.AttachmentSupport = (doc.getObject("XZ_Plane"), [""])
sketch7.MapMode = "FlatFace"
sketch7.addGeometry(Part.Circle(V(-64.984975, 70.000928, 0), V(0, 0, 1), 1.7), False)
sketch7.addGeometry(Part.Circle(V(65.015025, 70.000928, 0), V(0, 0, 1), 1.7), False)
sketch7.addGeometry(Part.Circle(V(65.015025, -69.999072, 0), V(0, 0, 1), 1.7), False)
sketch7.addGeometry(Part.Circle(V(-64.984975, -69.999072, 0), V(0, 0, 1), 1.7), False)
sketch7.addGeometry(Part.Circle(V(-32.984975, -53.226979, 0), V(0, 0, 1), 1.7), False)
sketch7.addGeometry(Part.Circle(V(-32.984975, -41.226979, 0), V(0, 0, 1), 1.7), False)
sketch7.addGeometry(Part.Circle(V(33.015025, -41.226979, 0), V(0, 0, 1), 1.7), False)
sketch7.addGeometry(Part.Circle(V(33.015025, -53.226979, 0), V(0, 0, 1), 1.7), False)
sketch7.addConstraint(Sketcher.Constraint("Equal", 0, 1))
sketch7.addConstraint(Sketcher.Constraint("Equal", 1, 2))
sketch7.addConstraint(Sketcher.Constraint("Equal", 2, 3))
sketch7.addConstraint(Sketcher.Constraint("Equal", 3, 4))
sketch7.addConstraint(Sketcher.Constraint("Equal", 4, 5))
sketch7.addConstraint(Sketcher.Constraint("Equal", 5, 6))
sketch7.addConstraint(Sketcher.Constraint("Equal", 6, 7))
sketch7.addConstraint(Sketcher.Constraint("Horizontal", 0, 3, 1, 3))
sketch7.addConstraint(Sketcher.Constraint("Horizontal", 2, 3, 3, 3))
sketch7.addConstraint(Sketcher.Constraint("Horizontal", 5, 3, 6, 3))
sketch7.addConstraint(Sketcher.Constraint("Horizontal", 4, 3, 7, 3))
sketch7.addConstraint(Sketcher.Constraint("Vertical", 1, 3, 2, 3))
sketch7.addConstraint(Sketcher.Constraint("Vertical", 0, 3, 3, 3))
sketch7.addConstraint(Sketcher.Constraint("Vertical", 4, 3, 5, 3))
sketch7.addConstraint(Sketcher.Constraint("Vertical", 6, 3, 7, 3))
sketch7.addConstraint(Sketcher.Constraint("Diameter", 0, Q("3.4 mm")))
sketch7.addConstraint(Sketcher.Constraint("DistanceX", 0, 3, 1, 3, Q("130 mm")))
sketch7.addConstraint(Sketcher.Constraint("DistanceY", 2, 3, 1, 3, Q("140 mm")))
sketch7.addConstraint(Sketcher.Constraint("DistanceX", 3, 3, 4, 3, Q("32 mm")))
sketch7.addConstraint(Sketcher.Constraint("DistanceY", 4, 3, 5, 3, Q("12 mm")))
sketch7.addConstraint(Sketcher.Constraint("DistanceX", 6, 3, 2, 3, Q("32 mm")))
sketch7.addConstraint(Sketcher.Constraint("DistanceY", 4, 3, -1, 1, Q("53.226979 mm")))
sketch7.addConstraint(Sketcher.Constraint("DistanceX", 0, 3, -1, 1, Q("64.984975 mm")))
sketch7.addConstraint(Sketcher.Constraint("DistanceY", -1, 1, 0, 3, Q("70.000928 mm")))
pocket3 = body.newObject("PartDesign::Pocket", "Pocket002")
pocket3.Profile = sketch7
pocket3.Length = 4

# Sketch on XZ plane
sketch8 = body.newObject("Sketcher::SketchObject", "Sketch007")
sketch8.AttachmentSupport = (doc.getObject("XZ_Plane"), [""])
sketch8.MapMode = "FlatFace"
add_polygon(sketch8, [(-32, 70), (-32, 55), (-26, 55), (-26, 70)])  # lines 0-3
sketch8.addGeometry(Part.Circle(V(-29, 62.5, 0), V(0, 0, 1), 1), False)  # 4
add_polygon(sketch8, [(26, 70), (26, 55), (32, 55), (32, 70)])  # lines 5-8
sketch8.addGeometry(Part.Circle(V(29, 62.5, 0), V(0, 0, 1), 1), False)  # 9
sketch8.addConstraint(Sketcher.Constraint("Vertical", 0))
sketch8.addConstraint(Sketcher.Constraint("Horizontal", 1))
sketch8.addConstraint(Sketcher.Constraint("Vertical", 2))
sketch8.addConstraint(Sketcher.Constraint("Horizontal", 3))
sketch8.addConstraint(Sketcher.Constraint("Vertical", 5))
sketch8.addConstraint(Sketcher.Constraint("Horizontal", 6))
sketch8.addConstraint(Sketcher.Constraint("Vertical", 7))
sketch8.addConstraint(Sketcher.Constraint("Horizontal", 8))
sketch8.addConstraint(Sketcher.Constraint("Equal", 4, 9))
sketch8.addConstraint(Sketcher.Constraint("Symmetric", 4, 3, 9, 3, -2))
sketch8.addConstraint(Sketcher.Constraint("Symmetric", 1, 2, 5, 2, -2))
sketch8.addConstraint(Sketcher.Constraint("Symmetric", 3, 2, 7, 2, -2))
sketch8.addConstraint(Sketcher.Constraint("Diameter", 4, Q("2 mm")))
sketch8.addConstraint(Sketcher.Constraint("DistanceX", 1, 1, 1, 2, Q("6 mm")))
sketch8.addConstraint(Sketcher.Constraint("DistanceY", 0, 2, 0, 1, Q("15 mm")))
sketch8.addConstraint(Sketcher.Constraint("DistanceX", 4, 3, -1, 1, Q("29 mm")))
sketch8.addConstraint(Sketcher.Constraint("DistanceX", 0, 2, -1, 1, Q("32 mm")))
sketch8.addConstraint(Sketcher.Constraint("DistanceY", -1, 1, 0, 2, Q("55 mm")))
sketch8.addConstraint(Sketcher.Constraint("DistanceY", -1, 1, 4, 3, Q("62.5 mm")))
pad5 = body.newObject("PartDesign::Pad", "Pad004")
pad5.Profile = sketch8
pad5.Length = 12

# Sketch on XZ plane
sketch9 = body.newObject("Sketcher::SketchObject", "Sketch008")
sketch9.AttachmentSupport = (doc.getObject("XZ_Plane"), [""])
sketch9.MapMode = "FlatFace"
add_polygon(sketch9, [(-19, 48), (-19, 42), (19, 42), (19, 48)])  # lines 0-3
sketch9.addConstraint(Sketcher.Constraint("Vertical", 0))
sketch9.addConstraint(Sketcher.Constraint("Horizontal", 1))
sketch9.addConstraint(Sketcher.Constraint("Vertical", 2))
sketch9.addConstraint(Sketcher.Constraint("Horizontal", 3))
sketch9.addConstraint(Sketcher.Constraint("DistanceX", 1, 1, 1, 2, Q("38 mm")))
sketch9.addConstraint(Sketcher.Constraint("DistanceY", 0, 2, 0, 1, Q("6 mm")))
sketch9.addConstraint(Sketcher.Constraint("DistanceX", 0, 2, -1, 1, Q("19 mm")))
sketch9.addConstraint(Sketcher.Constraint("DistanceY", -1, 1, 0, 2, Q("42 mm")))
pad6 = body.newObject("PartDesign::Pad", "Pad005")
pad6.Profile = sketch9
pad6.Length = 6

# Sketch on XY plane
sketch10 = body.newObject("Sketcher::SketchObject", "Sketch009")
sketch10.AttachmentSupport = (doc.getObject("XY_Plane"), [""])
sketch10.MapMode = "FlatFace"
sketch10.AttachmentOffset = App.Placement(V(0, 0, 42), App.Rotation())
sketch10.addGeometry(Part.Circle(V(-15, -3, 0), V(0, 0, 1), 1), False)
sketch10.addGeometry(Part.Circle(V(15, -3, 0), V(0, 0, 1), 1), False)
sketch10.addConstraint(Sketcher.Constraint("Equal", 0, 1))
sketch10.addConstraint(Sketcher.Constraint("Symmetric", 0, 3, 1, 3, -2))
sketch10.addConstraint(Sketcher.Constraint("Diameter", 0, Q("2 mm")))
sketch10.addConstraint(Sketcher.Constraint("DistanceX", 0, 3, -1, 1, Q("15 mm")))
sketch10.addConstraint(Sketcher.Constraint("DistanceY", 0, 3, -1, 1, Q("3 mm")))
pocket4 = body.newObject("PartDesign::Pocket", "Pocket003")
pocket4.Profile = sketch10
pocket4.Length = 6
pocket4.Reversed = True

doc.recompute()
